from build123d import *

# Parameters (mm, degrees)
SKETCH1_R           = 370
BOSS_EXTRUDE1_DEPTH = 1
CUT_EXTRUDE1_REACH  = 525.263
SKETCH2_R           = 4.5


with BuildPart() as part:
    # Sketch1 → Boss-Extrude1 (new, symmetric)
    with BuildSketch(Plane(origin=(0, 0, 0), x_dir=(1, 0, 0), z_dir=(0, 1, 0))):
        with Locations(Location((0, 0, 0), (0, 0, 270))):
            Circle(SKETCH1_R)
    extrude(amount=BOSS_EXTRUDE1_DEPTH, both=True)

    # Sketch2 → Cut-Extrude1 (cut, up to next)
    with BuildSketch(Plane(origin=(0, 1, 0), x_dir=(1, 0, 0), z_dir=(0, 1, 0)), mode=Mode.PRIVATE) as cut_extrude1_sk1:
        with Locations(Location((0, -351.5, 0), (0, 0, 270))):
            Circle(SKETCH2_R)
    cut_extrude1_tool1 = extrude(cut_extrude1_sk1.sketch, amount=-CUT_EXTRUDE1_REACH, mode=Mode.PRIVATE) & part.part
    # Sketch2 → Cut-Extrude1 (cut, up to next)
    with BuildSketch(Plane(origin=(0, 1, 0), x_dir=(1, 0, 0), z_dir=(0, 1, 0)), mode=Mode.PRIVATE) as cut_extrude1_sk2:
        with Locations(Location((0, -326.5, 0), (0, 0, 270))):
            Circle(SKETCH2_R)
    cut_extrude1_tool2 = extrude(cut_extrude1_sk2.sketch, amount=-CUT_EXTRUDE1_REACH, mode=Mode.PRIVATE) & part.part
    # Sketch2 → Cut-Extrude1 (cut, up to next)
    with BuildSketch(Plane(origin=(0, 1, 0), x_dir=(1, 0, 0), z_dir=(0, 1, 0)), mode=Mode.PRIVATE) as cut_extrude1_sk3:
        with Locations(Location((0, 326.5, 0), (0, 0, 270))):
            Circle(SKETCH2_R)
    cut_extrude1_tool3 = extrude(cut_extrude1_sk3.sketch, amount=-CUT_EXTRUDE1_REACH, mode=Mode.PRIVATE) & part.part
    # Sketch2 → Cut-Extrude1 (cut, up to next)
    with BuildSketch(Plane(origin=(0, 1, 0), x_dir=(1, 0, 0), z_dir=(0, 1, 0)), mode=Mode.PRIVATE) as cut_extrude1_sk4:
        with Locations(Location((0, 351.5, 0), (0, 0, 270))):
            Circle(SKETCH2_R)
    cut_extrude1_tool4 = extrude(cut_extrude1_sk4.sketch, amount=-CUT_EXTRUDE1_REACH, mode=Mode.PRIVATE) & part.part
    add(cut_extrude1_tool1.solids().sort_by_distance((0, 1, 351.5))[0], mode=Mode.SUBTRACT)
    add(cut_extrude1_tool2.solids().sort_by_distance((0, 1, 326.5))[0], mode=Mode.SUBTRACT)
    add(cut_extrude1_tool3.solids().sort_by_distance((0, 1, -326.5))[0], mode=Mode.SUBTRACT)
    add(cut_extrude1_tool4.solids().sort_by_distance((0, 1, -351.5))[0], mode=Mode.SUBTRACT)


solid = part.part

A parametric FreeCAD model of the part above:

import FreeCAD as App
import Part
import Sketcher

V = App.Vector
Q = App.Units.Quantity

doc = App.newDocument("Part")
params = doc.addObject("Spreadsheet::Sheet", "Params")
for row, (alias, value) in enumerate([
    ("sketch1_diameter", "740 mm"),
    ("pad1_length", "2 mm"),
    ("sketch2_diameter", "9 mm"),
    ("sketch3_diameter", "9 mm"),
    ("sketch4_diameter", "9 mm"),
    ("sketch5_diameter", "9 mm"),
], start=1):
    params.set(f"A{row}", alias)
    params.set(f"B{row}", "=" + value)
    params.setAlias(f"B{row}", alias)

body = doc.addObject("PartDesign::Body", "Body")

# Sketch on XZ plane
sketch1 = body.newObject("Sketcher::SketchObject", "Sketch")
sketch1.AttachmentSupport = (doc.getObject("XZ_Plane"), [""])
sketch1.MapMode = "FlatFace"
sketch1.addGeometry(Part.Circle(V(0, 0, 0), V(0, 0, 1), 370), False)
sketch1.addConstraint(Sketcher.Constraint("Coincident", 0, 3, -1, 1))
sketch1.addConstraint(Sketcher.Constraint("Diameter", 0, Q("740 mm")))
sketch1.setExpression("Constraints[1]", "Params.sketch1_diameter")
pad1 = body.newObject("PartDesign::Pad", "Pad")
pad1.Profile = sketch1
pad1.setExpression("Length", "Params.pad1_length")
pad1.Midplane = True

# Sketch on XZ plane
sketch2 = body.newObject("Sketcher::SketchObject", "Sketch001")
sketch2.AttachmentSupport = (doc.getObject("XZ_Plane"), [""])
sketch2.MapMode = "FlatFace"
sketch2.AttachmentOffset = App.Placement(V(0, 0, -1), App.Rotation())
sketch2.addGeometry(Part.Circle(V(0, 351.5, 0), V(0, 0, 1), 4.5), False)
sketch2.addConstraint(Sketcher.Constraint("PointOnObject", 0, 3, -2))
sketch2.addConstraint(Sketcher.Constraint("Diameter", 0, Q("9 mm")))
sketch2.addConstraint(Sketcher.Constraint("DistanceY", -1, 1, 0, 3, Q("351.5 mm")))
sketch2.setExpression("Constraints[1]", "Params.sketch2_diameter")
pocket1 = body.newObject("PartDesign::Pocket", "Pocket")
pocket1.Profile = sketch2
pocket1.Type = "UpToFirst"
pocket1.Reversed = True

# Sketch on XZ plane
sketch3 = body.newObject("Sketcher::SketchObject", "Sketch002")
sketch3.AttachmentSupport = (doc.getObject("XZ_Plane"), [""])
sketch3.MapMode = "FlatFace"
sketch3.AttachmentOffset = App.Placement(V(0, 0, -1), App.Rotation())
sketch3.addGeometry(Part.Circle(V(0, 326.5, 0), V(0, 0, 1), 4.5), False)
sketch3.addConstraint(Sketcher.Constraint("PointOnObject", 0, 3, -2))
sketch3.addConstraint(Sketcher.Constraint("Diameter", 0, Q("9 mm")))
sketch3.addConstraint(Sketcher.Constraint("DistanceY", -1, 1, 0, 3, Q("326.5 mm")))
sketch3.setExpression("Constraints[1]", "Params.sketch3_diameter")
pocket2 = body.newObject("PartDesign::Pocket", "Pocket001")
pocket2.Profile = sketch3
pocket2.Type = "UpToFirst"
pocket2.Reversed = True

# Sketch on XZ plane
sketch4 = body.newObject("Sketcher::SketchObject", "Sketch003")
sketch4.AttachmentSupport = (doc.getObject("XZ_Plane"), [""])
sketch4.MapMode = "FlatFace"
sketch4.AttachmentOffset = App.Placement(V(0, 0, -1), App.Rotation())
sketch4.addGeometry(Part.Circle(V(0, -326.5, 0), V(0, 0, 1), 4.5), False)
sketch4.addConstraint(Sketcher.Constraint("PointOnObject", 0, 3, -2))
sketch4.addConstraint(Sketcher.Constraint("Diameter", 0, Q("9 mm")))
sketch4.addConstraint(Sketcher.Constraint("DistanceY", 0, 3, -1, 1, Q("326.5 mm")))
sketch4.setExpression("Constraints[1]", "Params.sketch4_diameter")
pocket3 = body.newObject("PartDesign::Pocket", "Pocket002")
pocket3.Profile = sketch4
pocket3.Type = "UpToFirst"
pocket3.Reversed = True

# Sketch on XZ plane
sketch5 = body.newObject("Sketcher::SketchObject", "Sketch004")
sketch5.AttachmentSupport = (doc.getObject("XZ_Plane"), [""])
sketch5.MapMode = "FlatFace"
sketch5.AttachmentOffset = App.Placement(V(0, 0, -1), App.Rotation())
sketch5.addGeometry(Part.Circle(V(0, -351.5, 0), V(0, 0, 1), 4.5), False)
sketch5.addConstraint(Sketcher.Constraint("PointOnObject", 0, 3, -2))
sketch5.addConstraint(Sketcher.Constraint("Diameter", 0, Q("9 mm")))
sketch5.addConstraint(Sketcher.Constraint("DistanceY", 0, 3, -1, 1, Q("351.5 mm")))
sketch5.setExpression("Constraints[1]", "Params.sketch5_diameter")
pocket4 = body.newObject("PartDesign::Pocket", "Pocket003")
pocket4.Profile = sketch5
pocket4.Type = "UpToFirst"
pocket4.Reversed = True

doc.recompute()
